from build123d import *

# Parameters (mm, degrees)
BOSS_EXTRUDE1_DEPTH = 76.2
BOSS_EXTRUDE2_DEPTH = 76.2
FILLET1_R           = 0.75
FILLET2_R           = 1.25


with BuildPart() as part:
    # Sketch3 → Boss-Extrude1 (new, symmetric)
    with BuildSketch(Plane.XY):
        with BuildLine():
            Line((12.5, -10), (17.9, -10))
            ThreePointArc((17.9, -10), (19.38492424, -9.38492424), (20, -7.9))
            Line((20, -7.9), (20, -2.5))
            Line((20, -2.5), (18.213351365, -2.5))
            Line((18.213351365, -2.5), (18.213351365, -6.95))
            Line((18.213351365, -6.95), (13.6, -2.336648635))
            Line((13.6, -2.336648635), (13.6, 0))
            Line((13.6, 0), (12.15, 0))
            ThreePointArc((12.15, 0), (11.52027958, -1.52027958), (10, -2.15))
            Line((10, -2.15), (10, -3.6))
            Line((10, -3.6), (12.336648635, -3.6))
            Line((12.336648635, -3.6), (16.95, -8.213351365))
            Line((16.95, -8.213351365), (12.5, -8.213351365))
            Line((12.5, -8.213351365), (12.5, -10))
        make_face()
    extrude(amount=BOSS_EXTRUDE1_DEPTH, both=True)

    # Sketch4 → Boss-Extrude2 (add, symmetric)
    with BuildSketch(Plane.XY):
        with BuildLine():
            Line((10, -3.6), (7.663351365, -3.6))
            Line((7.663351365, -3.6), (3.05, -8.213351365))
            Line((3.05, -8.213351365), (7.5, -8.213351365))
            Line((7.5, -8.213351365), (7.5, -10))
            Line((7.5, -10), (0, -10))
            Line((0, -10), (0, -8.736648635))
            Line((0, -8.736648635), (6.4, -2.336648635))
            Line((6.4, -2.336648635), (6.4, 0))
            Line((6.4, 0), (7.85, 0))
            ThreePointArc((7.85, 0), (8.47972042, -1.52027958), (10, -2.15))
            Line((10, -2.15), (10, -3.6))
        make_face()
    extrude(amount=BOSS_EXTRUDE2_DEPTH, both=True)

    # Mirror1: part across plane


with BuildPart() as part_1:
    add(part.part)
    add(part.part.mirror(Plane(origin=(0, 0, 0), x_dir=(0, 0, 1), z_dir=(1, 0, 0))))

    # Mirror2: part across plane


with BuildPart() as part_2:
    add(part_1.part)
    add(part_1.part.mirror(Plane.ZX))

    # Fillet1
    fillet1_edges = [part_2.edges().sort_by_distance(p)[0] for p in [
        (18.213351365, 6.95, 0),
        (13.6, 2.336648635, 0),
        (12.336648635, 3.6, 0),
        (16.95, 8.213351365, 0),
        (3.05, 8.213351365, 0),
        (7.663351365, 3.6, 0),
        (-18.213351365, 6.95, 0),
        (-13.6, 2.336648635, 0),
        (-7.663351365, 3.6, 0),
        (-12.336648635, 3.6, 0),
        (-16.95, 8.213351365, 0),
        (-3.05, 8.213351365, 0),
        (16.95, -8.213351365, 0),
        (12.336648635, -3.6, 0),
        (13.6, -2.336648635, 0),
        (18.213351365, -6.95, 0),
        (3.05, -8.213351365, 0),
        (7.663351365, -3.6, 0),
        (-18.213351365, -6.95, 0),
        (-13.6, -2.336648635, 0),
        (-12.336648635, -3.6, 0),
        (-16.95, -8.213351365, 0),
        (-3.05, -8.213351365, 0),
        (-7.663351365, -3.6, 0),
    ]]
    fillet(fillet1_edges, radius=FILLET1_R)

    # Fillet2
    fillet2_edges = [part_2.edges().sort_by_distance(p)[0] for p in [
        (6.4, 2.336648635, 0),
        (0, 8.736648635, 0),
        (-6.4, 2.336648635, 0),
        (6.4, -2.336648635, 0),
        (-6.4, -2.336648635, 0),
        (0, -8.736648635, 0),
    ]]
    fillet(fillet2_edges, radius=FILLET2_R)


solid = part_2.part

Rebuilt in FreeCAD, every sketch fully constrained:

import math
import FreeCAD as App
import Part
import Sketcher

V = App.Vector
Q = App.Units.Quantity


def edges_at(feature, points):
    """Names of the edges that pass closest to the given points."""
    edges = feature.Shape.Edges
    near = lambda p: min(range(len(edges)), key=lambda i: edges[i].distToShape(Part.Vertex(*p))[0])
    return sorted({f"Edge{near(p) + 1}" for p in points})

doc = App.newDocument("Part")
body = doc.addObject("PartDesign::Body", "Body")

# Sketch on XY plane
sketch1 = doc.addObject("Sketcher::SketchObject", "Sketch")
body.addObject(sketch1)
sketch1.AttachmentSupport = (doc.XY_Plane, [""])
sketch1.MapMode = "FlatFace"
sketch1.addGeometry([
    Part.LineSegment(V(12.5, -10, 0), V(17.9, -10, 0)),  # 0
    Part.ArcOfCircle(Part.Circle(V(17.9, -7.9, 0), V(0, 0, 1), 2.1), math.radians(-90), math.radians(0)),  # 1
    Part.LineSegment(V(20, -7.9, 0), V(20, -2.5, 0)),  # 2
    Part.LineSegment(V(20, -2.5, 0), V(18.2, -2.5, 0)),  # 3
    Part.LineSegment(V(18.2, -2.5, 0), V(18.2, -7, 0)),  # 4
    Part.LineSegment(V(18.2, -7, 0), V(13.6, -2.3, 0)),  # 5
    Part.LineSegment(V(13.6, -2.3, 0), V(13.6, 0, 0)),  # 6
    Part.LineSegment(V(13.6, 0, 0), V(12.2, 0, 0)),  # 7
    Part.ArcOfCircle(Part.Circle(V(10, 0, 0), V(0, 0, 1), 2.1), math.radians(-90), math.radians(0)),  # 8
    Part.LineSegment(V(10, -2.1, 0), V(10, -3.6, 0)),  # 9
    Part.LineSegment(V(10, -3.6, 0), V(12.3, -3.6, 0)),  # 10
    Part.LineSegment(V(12.3, -3.6, 0), V(16.9, -8.2, 0)),  # 11
    Part.LineSegment(V(16.9, -8.2, 0), V(12.5, -8.2, 0)),  # 12
    Part.LineSegment(V(12.5, -8.2, 0), V(12.5, -10, 0)),  # 13
], False)
sketch1.addConstraint([
    Sketcher.Constraint("Tangent", 0, 2, 1, 1),
    Sketcher.Constraint("Tangent", 1, 2, 2, 1),
    Sketcher.Constraint("Coincident", 2, 2, 3, 1),
    Sketcher.Constraint("Coincident", 3, 2, 4, 1),
    Sketcher.Constraint("Coincident", 4, 2, 5, 1),
    Sketcher.Constraint("Coincident", 5, 2, 6, 1),
    Sketcher.Constraint("Coincident", 6, 2, 7, 1),
    Sketcher.Constraint("Coincident", 7, 2, 8, 2),
    Sketcher.Constraint("Coincident", 8, 1, 9, 1),
    Sketcher.Constraint("Coincident", 9, 2, 10, 1),
    Sketcher.Constraint("Coincident", 10, 2, 11, 1),
    Sketcher.Constraint("Coincident", 11, 2, 12, 1),
    Sketcher.Constraint("Coincident", 12, 2, 13, 1),
    Sketcher.Constraint("Coincident", 13, 2, 0, 1),
    Sketcher.Constraint("Horizontal", 0),
    Sketcher.Constraint("Vertical", 2),
    Sketcher.Constraint("Horizontal", 3),
    Sketcher.Constraint("Vertical", 4),
    Sketcher.Constraint("Vertical", 6),
    Sketcher.Constraint("Horizontal", 7),
    Sketcher.Constraint("Vertical", 9),
    Sketcher.Constraint("Horizontal", 10),
    Sketcher.Constraint("Horizontal", 12),
    Sketcher.Constraint("Vertical", 13),
    Sketcher.Constraint("PointOnObject", 8, 3, -1),
    Sketcher.Constraint("PointOnObject", 6, 2, -1),
    Sketcher.Constraint("Parallel", 5, 11),
    Sketcher.Constraint("Equal", 0, 2),
    Sketcher.Constraint("Equal", 12, 4),
    Sketcher.Constraint("Equal", 10, 6),
    Sketcher.Constraint("Equal", 7, 9),
    Sketcher.Constraint("Equal", 3, 13),
    Sketcher.Constraint("Equal", 5, 11),
    Sketcher.Constraint("Radius", 1, 2.1),
    Sketcher.Constraint("Angle", 5, Q("135 deg")),
    Sketcher.Constraint("Radius", 8, 2.15),
    Sketcher.Constraint("DistanceX", 0, 1, 0, 2, 5.4),
    Sketcher.Constraint("DistanceX", -1, 1, 8, 3, 10.0),
    Sketcher.Constraint("DistanceY", 0, 2, -1, 1, 10.0),
    Sketcher.Constraint("DistanceX", 7, 2, 7, 1, 1.45),
    Sketcher.Constraint("DistanceX", 12, 2, 12, 1, 4.45),
    Sketcher.Constraint("DistanceX", 3, 2, 3, 1, 1.786649),
])
pad1 = doc.addObject("PartDesign::Pad", "Pad")
body.addObject(pad1)
pad1.Profile = sketch1
pad1.Length = 152.4
pad1.Midplane = True

# Sketch on XY plane
sketch2 = doc.addObject("Sketcher::SketchObject", "Sketch001")
body.addObject(sketch2)
sketch2.AttachmentSupport = (doc.XY_Plane, [""])
sketch2.MapMode = "FlatFace"
sketch2.addGeometry([
    Part.LineSegment(V(7.7, -3.6, 0), V(10, -3.6, 0)),  # 0
    Part.LineSegment(V(10, -3.6, 0), V(10, -2.1, 0)),  # 1
    Part.ArcOfCircle(Part.Circle(V(10, 0, 0), V(0, 0, 1), 2.1), math.radians(180), math.radians(270)),  # 2
    Part.LineSegment(V(7.8, 0, 0), V(6.4, 0, 0)),  # 3
    Part.LineSegment(V(6.4, 0, 0), V(6.4, -2.3, 0)),  # 4
    Part.LineSegment(V(6.4, -2.3, 0), V(0, -8.7, 0)),  # 5
    Part.LineSegment(V(0, -8.7, 0), V(0, -10, 0)),  # 6
    Part.LineSegment(V(0, -10, 0), V(7.5, -10, 0)),  # 7
    Part.LineSegment(V(7.5, -10, 0), V(7.5, -8.2, 0)),  # 8
    Part.LineSegment(V(7.5, -8.2, 0), V(3, -8.2, 0)),  # 9
    Part.LineSegment(V(3, -8.2, 0), V(7.7, -3.6, 0)),  # 10
], False)
sketch2.addConstraint([
    Sketcher.Constraint("Coincident", 0, 2, 1, 1),
    Sketcher.Constraint("Coincident", 1, 2, 2, 2),
    Sketcher.Constraint("Coincident", 2, 1, 3, 1),
    Sketcher.Constraint("Coincident", 3, 2, 4, 1),
    Sketcher.Constraint("Coincident", 4, 2, 5, 1),
    Sketcher.Constraint("Coincident", 5, 2, 6, 1),
    Sketcher.Constraint("Coincident", 6, 2, 7, 1),
    Sketcher.Constraint("Coincident", 7, 2, 8, 1),
    Sketcher.Constraint("Coincident", 8, 2, 9, 1),
    Sketcher.Constraint("Coincident", 9, 2, 10, 1),
    Sketcher.Constraint("Coincident", 10, 2, 0, 1),
    Sketcher.Constraint("Horizontal", 0),
    Sketcher.Constraint("Vertical", 1),
    Sketcher.Constraint("Horizontal", 3),
    Sketcher.Constraint("Vertical", 4),
    Sketcher.Constraint("Vertical", 6),
    Sketcher.Constraint("Horizontal", 7),
    Sketcher.Constraint("Vertical", 8),
    Sketcher.Constraint("Horizontal", 9),
    Sketcher.Constraint("PointOnObject", 2, 3, -1),
    Sketcher.Constraint("PointOnObject", 2, 1, -1),
    Sketcher.Constraint("PointOnObject", 5, 2, -2),
    Sketcher.Constraint("Parallel", 5, 10),
    Sketcher.Constraint("Vertical", 2, 3, 0, 2),
    Sketcher.Constraint("Equal", 3, 1),
    Sketcher.Constraint("Equal", 0, 4),
    Sketcher.Constraint("Angle", 5, Q("-135 deg")),
    Sketcher.Constraint("Radius", 2, 2.15),
    Sketcher.Constraint("DistanceX", 7, 1, 7, 2, 7.5),
    Sketcher.Constraint("DistanceX", -1, 1, 2, 3, 10.0),
    Sketcher.Constraint("DistanceY", 6, 2, -1, 1, 10.0),
    Sketcher.Constraint("DistanceX", 3, 2, 3, 1, 1.45),
    Sketcher.Constraint("DistanceX", 9, 2, 9, 1, 4.45),
    Sketcher.Constraint("DistanceX", 0, 1, 0, 2, 2.336649),
])
pad2 = doc.addObject("PartDesign::Pad", "Pad001")
body.addObject(pad2)
pad2.Profile = sketch2
pad2.Length = 152.4
pad2.Midplane = True
body2 = doc.addObject("PartDesign::Body", "Body001")
doc.recompute()

body2.BaseFeature = body
doc.recompute()

mirroring = doc.addObject("Part::Mirroring", "Mirroring")
mirroring.Source = body
mirroring.Base = V(0, 0, 0)
mirroring.Normal = V(1, 0, 0)
body3 = doc.addObject("PartDesign::Body", "Body002")
body3.BaseFeature = mirroring
boolean = doc.addObject("PartDesign::Boolean", "Boolean")
body2.addObject(boolean)
boolean.Type = "Fuse"
boolean.addObjects([body3])
doc.recompute()
body4 = doc.addObject("PartDesign::Body", "Body003")
doc.recompute()

body4.BaseFeature = body2
doc.recompute()

mirroring2 = doc.addObject("Part::Mirroring", "Mirroring001")
mirroring2.Source = body2
mirroring2.Base = V(0, 0, 0)
mirroring2.Normal = V(0, 1, 0)
body5 = doc.addObject("PartDesign::Body", "Body004")
body5.BaseFeature = mirroring2
boolean2 = doc.addObject("PartDesign::Boolean", "Boolean001")
body4.addObject(boolean2)
boolean2.Type = "Fuse"
boolean2.addObjects([body5])
doc.recompute()

fillet = doc.addObject("PartDesign::Fillet", "Fillet")
body4.addObject(fillet)
fillet.Base = (boolean2, edges_at(boolean2, [
    (18.213, 6.95, 0),
    (13.6, 2.337, 0),
    (12.337, 3.6, 0),
    (16.95, 8.213, 0),
    (3.05, 8.213, 0),
    (7.663, 3.6, 0),
    (-18.213, 6.95, 0),
    (-13.6, 2.337, 0),
    (-7.663, 3.6, 0),
    (-12.337, 3.6, 0),
    (-16.95, 8.213, 0),
    (-3.05, 8.213, 0),
    (16.95, -8.213, 0),
    (12.337, -3.6, 0),
    (13.6, -2.337, 0),
    (18.213, -6.95, 0),
    (3.05, -8.213, 0),
    (7.663, -3.6, 0),
    (-18.213, -6.95, 0),
    (-13.6, -2.337, 0),
    (-12.337, -3.6, 0),
    (-16.95, -8.213, 0),
    (-3.05, -8.213, 0),
    (-7.663, -3.6, 0),
]))
fillet.Radius = 0.75
doc.recompute()

fillet2 = doc.addObject("PartDesign::Fillet", "Fillet001")
body4.addObject(fillet2)
fillet2.Base = (fillet, edges_at(fillet, [
    (6.4, 2.337, 0),
    (0, 8.737, 0),
    (-6.4, 2.337, 0),
    (6.4, -2.337, 0),
    (-6.4, -2.337, 0),
    (0, -8.737, 0),
]))
fillet2.Radius = 1.25
mirroring.Visibility = False
mirroring2.Visibility = False

doc.recompute()
